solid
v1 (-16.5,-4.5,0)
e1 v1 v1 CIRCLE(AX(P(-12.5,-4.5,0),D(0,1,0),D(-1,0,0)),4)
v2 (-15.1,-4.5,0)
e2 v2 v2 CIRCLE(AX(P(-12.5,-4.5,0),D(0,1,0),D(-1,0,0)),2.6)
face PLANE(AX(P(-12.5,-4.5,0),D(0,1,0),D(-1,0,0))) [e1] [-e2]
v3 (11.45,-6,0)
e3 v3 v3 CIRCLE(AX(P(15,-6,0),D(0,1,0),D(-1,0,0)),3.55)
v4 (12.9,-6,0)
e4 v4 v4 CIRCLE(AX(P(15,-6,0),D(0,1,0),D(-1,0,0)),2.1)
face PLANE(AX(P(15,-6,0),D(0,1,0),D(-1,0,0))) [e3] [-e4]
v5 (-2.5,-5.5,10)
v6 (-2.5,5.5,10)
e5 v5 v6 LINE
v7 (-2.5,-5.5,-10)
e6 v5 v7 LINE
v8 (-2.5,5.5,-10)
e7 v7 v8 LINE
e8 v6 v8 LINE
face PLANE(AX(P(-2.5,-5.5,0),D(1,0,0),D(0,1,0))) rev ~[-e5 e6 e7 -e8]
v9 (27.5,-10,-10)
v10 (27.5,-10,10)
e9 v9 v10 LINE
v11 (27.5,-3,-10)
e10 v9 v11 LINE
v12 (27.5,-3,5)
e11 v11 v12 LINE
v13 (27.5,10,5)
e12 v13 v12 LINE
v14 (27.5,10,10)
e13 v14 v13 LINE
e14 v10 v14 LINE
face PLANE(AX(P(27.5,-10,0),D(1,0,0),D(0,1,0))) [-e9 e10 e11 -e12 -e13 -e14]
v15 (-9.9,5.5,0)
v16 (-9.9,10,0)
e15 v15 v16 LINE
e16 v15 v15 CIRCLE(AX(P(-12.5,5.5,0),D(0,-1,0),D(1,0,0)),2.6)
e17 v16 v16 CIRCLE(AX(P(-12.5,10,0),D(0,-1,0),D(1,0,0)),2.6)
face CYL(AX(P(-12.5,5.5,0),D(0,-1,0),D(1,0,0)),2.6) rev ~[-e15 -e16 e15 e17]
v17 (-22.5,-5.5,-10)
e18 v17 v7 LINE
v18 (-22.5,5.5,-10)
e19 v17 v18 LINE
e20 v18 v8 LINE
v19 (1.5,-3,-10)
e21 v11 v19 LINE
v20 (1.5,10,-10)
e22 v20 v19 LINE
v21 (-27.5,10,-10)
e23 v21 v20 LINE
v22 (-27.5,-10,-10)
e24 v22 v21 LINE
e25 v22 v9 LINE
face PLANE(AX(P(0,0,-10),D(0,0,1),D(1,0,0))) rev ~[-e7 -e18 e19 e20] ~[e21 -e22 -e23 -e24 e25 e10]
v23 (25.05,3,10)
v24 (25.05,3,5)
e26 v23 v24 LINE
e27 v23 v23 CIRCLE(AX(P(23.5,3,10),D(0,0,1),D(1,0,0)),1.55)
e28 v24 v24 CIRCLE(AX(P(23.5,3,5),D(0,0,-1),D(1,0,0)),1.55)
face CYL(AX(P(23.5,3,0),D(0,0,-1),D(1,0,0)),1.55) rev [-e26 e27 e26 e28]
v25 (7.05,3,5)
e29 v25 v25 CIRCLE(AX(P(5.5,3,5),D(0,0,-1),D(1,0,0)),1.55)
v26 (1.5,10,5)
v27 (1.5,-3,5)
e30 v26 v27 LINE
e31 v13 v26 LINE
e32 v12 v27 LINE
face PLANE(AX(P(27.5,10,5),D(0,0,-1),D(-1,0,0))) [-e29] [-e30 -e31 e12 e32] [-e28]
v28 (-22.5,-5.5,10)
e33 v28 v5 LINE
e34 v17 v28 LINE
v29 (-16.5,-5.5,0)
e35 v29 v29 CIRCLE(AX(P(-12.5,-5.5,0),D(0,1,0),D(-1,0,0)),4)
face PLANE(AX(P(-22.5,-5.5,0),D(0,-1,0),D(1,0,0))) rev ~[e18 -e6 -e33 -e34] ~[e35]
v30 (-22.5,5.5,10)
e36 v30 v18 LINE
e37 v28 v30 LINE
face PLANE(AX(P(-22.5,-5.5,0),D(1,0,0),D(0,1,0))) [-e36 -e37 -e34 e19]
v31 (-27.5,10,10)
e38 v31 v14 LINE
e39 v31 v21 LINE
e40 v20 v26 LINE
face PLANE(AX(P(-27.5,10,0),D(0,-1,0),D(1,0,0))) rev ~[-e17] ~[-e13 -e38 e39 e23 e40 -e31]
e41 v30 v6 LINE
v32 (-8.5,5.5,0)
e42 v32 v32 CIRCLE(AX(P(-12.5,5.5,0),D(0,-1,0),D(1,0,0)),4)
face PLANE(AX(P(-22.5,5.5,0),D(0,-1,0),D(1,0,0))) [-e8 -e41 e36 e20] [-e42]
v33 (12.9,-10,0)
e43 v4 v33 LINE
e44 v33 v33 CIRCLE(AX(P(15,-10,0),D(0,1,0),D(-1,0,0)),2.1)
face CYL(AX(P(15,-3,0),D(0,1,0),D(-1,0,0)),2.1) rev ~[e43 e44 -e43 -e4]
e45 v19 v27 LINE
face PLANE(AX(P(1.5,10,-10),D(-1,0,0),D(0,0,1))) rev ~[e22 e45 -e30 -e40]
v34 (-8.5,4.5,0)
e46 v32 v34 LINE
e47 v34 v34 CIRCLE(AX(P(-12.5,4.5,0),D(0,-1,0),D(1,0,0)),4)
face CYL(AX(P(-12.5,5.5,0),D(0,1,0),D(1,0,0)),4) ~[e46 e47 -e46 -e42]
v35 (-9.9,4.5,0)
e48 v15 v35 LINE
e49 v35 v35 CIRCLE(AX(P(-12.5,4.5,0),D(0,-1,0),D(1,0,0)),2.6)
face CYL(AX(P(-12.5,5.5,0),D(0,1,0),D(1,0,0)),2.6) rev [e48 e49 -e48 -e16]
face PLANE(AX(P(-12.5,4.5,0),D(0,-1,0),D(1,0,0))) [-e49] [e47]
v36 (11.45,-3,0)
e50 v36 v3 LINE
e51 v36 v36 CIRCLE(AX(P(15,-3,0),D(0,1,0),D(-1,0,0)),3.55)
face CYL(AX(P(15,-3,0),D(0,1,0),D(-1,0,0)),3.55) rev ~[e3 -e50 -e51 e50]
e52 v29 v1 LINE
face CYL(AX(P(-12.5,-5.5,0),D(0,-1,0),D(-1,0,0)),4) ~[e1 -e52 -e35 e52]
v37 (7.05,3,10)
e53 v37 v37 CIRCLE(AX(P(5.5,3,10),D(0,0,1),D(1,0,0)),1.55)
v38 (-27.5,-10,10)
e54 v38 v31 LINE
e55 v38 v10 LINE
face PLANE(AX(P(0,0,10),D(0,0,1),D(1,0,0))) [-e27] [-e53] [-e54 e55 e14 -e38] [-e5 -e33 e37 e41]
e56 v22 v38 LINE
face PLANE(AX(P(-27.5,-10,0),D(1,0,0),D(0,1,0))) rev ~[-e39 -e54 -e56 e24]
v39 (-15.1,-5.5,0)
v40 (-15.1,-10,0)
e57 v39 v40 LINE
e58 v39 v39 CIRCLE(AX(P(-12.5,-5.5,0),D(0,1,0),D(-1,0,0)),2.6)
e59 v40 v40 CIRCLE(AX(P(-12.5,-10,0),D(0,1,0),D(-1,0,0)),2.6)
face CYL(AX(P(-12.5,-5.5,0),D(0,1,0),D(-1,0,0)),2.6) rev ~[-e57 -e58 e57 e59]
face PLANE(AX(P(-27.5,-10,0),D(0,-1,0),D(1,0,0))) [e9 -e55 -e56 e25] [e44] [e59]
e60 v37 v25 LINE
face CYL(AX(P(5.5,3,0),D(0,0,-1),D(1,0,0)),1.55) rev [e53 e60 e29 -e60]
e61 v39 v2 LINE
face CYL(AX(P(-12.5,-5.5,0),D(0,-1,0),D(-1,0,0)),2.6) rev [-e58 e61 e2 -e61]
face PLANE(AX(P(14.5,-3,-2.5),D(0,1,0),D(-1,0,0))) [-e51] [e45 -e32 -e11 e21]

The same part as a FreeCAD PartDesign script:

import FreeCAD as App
import Part
import Sketcher


def add_polygon(sketch, points):
    """Adds a closed chain of lines whose ends are joined by coincident constraints."""
    first, n = sketch.GeometryCount, len(points)
    for a, b in zip(points, points[1:] + points[:1]):
        sketch.addGeometry(Part.LineSegment(App.Vector(*a, 0), App.Vector(*b, 0)), False)
    for i in range(n):
        sketch.addConstraint(Sketcher.Constraint("Coincident", first + i, 2, first + (i + 1) % n, 1))

doc = App.newDocument("Part")
body = doc.addObject("PartDesign::Body", "Body")

# Sketch on XY plane
sketch1 = body.newObject("Sketcher::SketchObject", "Sketch")
sketch1.AttachmentSupport = (doc.getObject("XY_Plane"), [""])
sketch1.MapMode = "FlatFace"
add_polygon(sketch1, [(-27.5, 10), (-27.5, -10), (27.5, -10), (27.5, 10)])  # lines 0-3
add_polygon(sketch1, [(-2.5, -5.5), (-22.5, -5.5), (-22.5, 5.5), (-2.5, 5.5)])  # lines 4-7
sketch1.addGeometry(Part.Circle(App.Vector(5.5, 3, 0), App.Vector(0, 0, 1), 1.6), False)  # 8
sketch1.addGeometry(Part.Circle(App.Vector(23.5, 3, 0), App.Vector(0, 0, 1), 1.6), False)  # 9
sketch1.addConstraint([
    Sketcher.Constraint("Vertical", 0),
    Sketcher.Constraint("Horizontal", 1),
    Sketcher.Constraint("Vertical", 2),
    Sketcher.Constraint("Horizontal", 3),
    Sketcher.Constraint("Horizontal", 4),
    Sketcher.Constraint("Vertical", 5),
    Sketcher.Constraint("Horizontal", 6),
    Sketcher.Constraint("Vertical", 7),
    Sketcher.Constraint("Equal", 8, 9),
    Sketcher.Constraint("Symmetric", 0, 2, 2, 2, -1, 1),
    Sketcher.Constraint("Horizontal", 8, 3, 9, 3),
    Sketcher.Constraint("Equal", 6, 0),
    Sketcher.Constraint("Diameter", 8, 3.1),
    Sketcher.Constraint("DistanceX", 1, 1, 1, 2, 55.0),
    Sketcher.Constraint("DistanceX", 4, 2, 4, 1, 20.0),
    Sketcher.Constraint("DistanceY", 5, 1, 5, 2, 11.0),
    Sketcher.Constraint("DistanceY", -1, 1, 8, 3, 3.0),
    Sketcher.Constraint("DistanceX", 8, 3, 9, 3, 18.0),
    Sketcher.Constraint("DistanceX", 0, 2, 8, 3, 33.0),
    Sketcher.Constraint("DistanceX", 0, 2, 4, 2, 5.0),
    Sketcher.Constraint("DistanceY", 4, 2, -1, 1, 5.5),
])
pad1 = body.newObject("PartDesign::Pad", "Pad")
pad1.Profile = sketch1
pad1.Length = 20
pad1.Midplane = True

# Sketch on XZ plane
sketch2 = body.newObject("Sketcher::SketchObject", "Sketch001")
sketch2.AttachmentSupport = (doc.getObject("XZ_Plane"), [""])
sketch2.MapMode = "FlatFace"
sketch2.AttachmentOffset = App.Placement(App.Vector(0, 0, -5.5), App.Rotation())
sketch2.addGeometry(Part.Circle(App.Vector(-12.5, 0, 0), App.Vector(0, 0, 1), 2.6), False)
sketch2.addConstraint([
    Sketcher.Constraint("PointOnObject", 0, 3, -1),
    Sketcher.Constraint("Diameter", 0, 5.2),
    Sketcher.Constraint("DistanceX", 0, 3, -1, 1, 12.5),
])
pocket1 = body.newObject("PartDesign::Pocket", "Pocket")
pocket1.Profile = sketch2
pocket1.Length = 5

# Sketch on XZ plane
sketch3 = body.newObject("Sketcher::SketchObject", "Sketch002")
sketch3.AttachmentSupport = (doc.getObject("XZ_Plane"), [""])
sketch3.MapMode = "FlatFace"
sketch3.AttachmentOffset = App.Placement(App.Vector(0, 0, 5.5), App.Rotation())
sketch3.addGeometry(Part.Circle(App.Vector(-12.5, 0, 0), App.Vector(0, 0, 1), 2.6), False)
sketch3.addConstraint([
    Sketcher.Constraint("PointOnObject", 0, 3, -1),
    Sketcher.Constraint("Diameter", 0, 5.2),
    Sketcher.Constraint("DistanceX", 0, 3, -1, 1, 12.5),
])
pocket2 = body.newObject("PartDesign::Pocket", "Pocket001")
pocket2.Profile = sketch3
pocket2.Length = 5
pocket2.Reversed = True

# Sketch on XZ plane
sketch4 = body.newObject("Sketcher::SketchObject", "Sketch003")
sketch4.AttachmentSupport = (doc.getObject("XZ_Plane"), [""])
sketch4.MapMode = "FlatFace"
sketch4.AttachmentOffset = App.Placement(App.Vector(0, 0, 5.5), App.Rotation())
sketch4.addGeometry([
    Part.Circle(App.Vector(-12.5, 0, 0), App.Vector(0, 0, 1), 4),
    Part.Circle(App.Vector(-12.5, 0, 0), App.Vector(0, 0, 1), 2.6),
], False)
sketch4.addConstraint([
    Sketcher.Constraint("Coincident", 1, 3, 0, 3),
    Sketcher.Constraint("PointOnObject", 0, 3, -1),
    Sketcher.Constraint("Diameter", 0, 8.0),
    Sketcher.Constraint("Diameter", 1, 5.2),
    Sketcher.Constraint("DistanceX", 0, 3, -1, 1, 12.5),
])
pad2 = body.newObject("PartDesign::Pad", "Pad001")
pad2.Profile = sketch4
pad2.Length = 1
pad2.Reversed = True

# Sketch on XZ plane
sketch5 = body.newObject("Sketcher::SketchObject", "Sketch004")
sketch5.AttachmentSupport = (doc.getObject("XZ_Plane"), [""])
sketch5.MapMode = "FlatFace"
sketch5.AttachmentOffset = App.Placement(App.Vector(0, 0, -5.5), App.Rotation())
sketch5.addGeometry([
    Part.Circle(App.Vector(-12.5, 0, 0), App.Vector(0, 0, 1), 4),
    Part.Circle(App.Vector(-12.5, 0, 0), App.Vector(0, 0, 1), 2.6),
], False)
sketch5.addConstraint([
    Sketcher.Constraint("Coincident", 1, 3, 0, 3),
    Sketcher.Constraint("PointOnObject", 0, 3, -1),
    Sketcher.Constraint("Diameter", 0, 8.0),
    Sketcher.Constraint("Diameter", 1, 5.2),
    Sketcher.Constraint("DistanceX", 0, 3, -1, 1, 12.5),
])
pad3 = body.newObject("PartDesign::Pad", "Pad002")
pad3.Profile = sketch5
pad3.Length = 1

# Sketch on XZ plane
sketch6 = body.newObject("Sketcher::SketchObject", "Sketch005")
sketch6.AttachmentSupport = (doc.getObject("XZ_Plane"), [""])
sketch6.MapMode = "FlatFace"
sketch6.AttachmentOffset = App.Placement(App.Vector(0, 0, -10), App.Rotation())
add_polygon(sketch6, [(28, 5), (28, -10), (2, -10), (2, 5)])  # lines 0-3
sketch6.addConstraint([
    Sketcher.Constraint("Vertical", 0),
    Sketcher.Constraint("Horizontal", 1),
    Sketcher.Constraint("Vertical", 2),
    Sketcher.Constraint("Horizontal", 3),
    Sketcher.Constraint("DistanceX", 1, 2, 1, 1, 26.0),
    Sketcher.Constraint("DistanceY", 0, 2, 0, 1, 15.0),
    Sketcher.Constraint("DistanceY", 0, 2, -1, 1, 10.0),
    Sketcher.Constraint("DistanceX", -1, 1, 0, 2, 27.5),
])
pocket3 = body.newObject("PartDesign::Pocket", "Pocket002")
pocket3.Profile = sketch6
pocket3.Length = 13
pocket3.Reversed = True

# Sketch on XZ plane
sketch7 = body.newObject("Sketcher::SketchObject", "Sketch006")
sketch7.AttachmentSupport = (doc.getObject("XZ_Plane"), [""])
sketch7.MapMode = "FlatFace"
sketch7.AttachmentOffset = App.Placement(App.Vector(0, 0, 3), App.Rotation())
sketch7.addGeometry(Part.Circle(App.Vector(15, 0, 0), App.Vector(0, 0, 1), 2.1), False)
sketch7.addConstraint([
    Sketcher.Constraint("PointOnObject", 0, 3, -1),
    Sketcher.Constraint("Diameter", 0, 4.2),
    Sketcher.Constraint("DistanceX", -1, 1, 0, 3, 15.0),
])
pocket4 = body.newObject("PartDesign::Pocket", "Pocket003")
pocket4.Profile = sketch7
pocket4.Length = 7
pocket4.Reversed = True

# Sketch on XZ plane
sketch8 = body.newObject("Sketcher::SketchObject", "Sketch007")
sketch8.AttachmentSupport = (doc.getObject("XZ_Plane"), [""])
sketch8.MapMode = "FlatFace"
sketch8.AttachmentOffset = App.Placement(App.Vector(0, 0, 3), App.Rotation())
sketch8.addGeometry(Part.Circle(App.Vector(15, 0, 0), App.Vector(0, 0, 1), 3.5), False)
sketch8.addConstraint([
    Sketcher.Constraint("PointOnObject", 0, 3, -1),
    Sketcher.Constraint("Diameter", 0, 7.1),
    Sketcher.Constraint("DistanceX", -1, 1, 0, 3, 15.0),
])
pocket5 = body.newObject("PartDesign::Pocket", "Pocket004")
pocket5.Profile = sketch8
pocket5.Length = 3
pocket5.Reversed = True

doc.recompute()
